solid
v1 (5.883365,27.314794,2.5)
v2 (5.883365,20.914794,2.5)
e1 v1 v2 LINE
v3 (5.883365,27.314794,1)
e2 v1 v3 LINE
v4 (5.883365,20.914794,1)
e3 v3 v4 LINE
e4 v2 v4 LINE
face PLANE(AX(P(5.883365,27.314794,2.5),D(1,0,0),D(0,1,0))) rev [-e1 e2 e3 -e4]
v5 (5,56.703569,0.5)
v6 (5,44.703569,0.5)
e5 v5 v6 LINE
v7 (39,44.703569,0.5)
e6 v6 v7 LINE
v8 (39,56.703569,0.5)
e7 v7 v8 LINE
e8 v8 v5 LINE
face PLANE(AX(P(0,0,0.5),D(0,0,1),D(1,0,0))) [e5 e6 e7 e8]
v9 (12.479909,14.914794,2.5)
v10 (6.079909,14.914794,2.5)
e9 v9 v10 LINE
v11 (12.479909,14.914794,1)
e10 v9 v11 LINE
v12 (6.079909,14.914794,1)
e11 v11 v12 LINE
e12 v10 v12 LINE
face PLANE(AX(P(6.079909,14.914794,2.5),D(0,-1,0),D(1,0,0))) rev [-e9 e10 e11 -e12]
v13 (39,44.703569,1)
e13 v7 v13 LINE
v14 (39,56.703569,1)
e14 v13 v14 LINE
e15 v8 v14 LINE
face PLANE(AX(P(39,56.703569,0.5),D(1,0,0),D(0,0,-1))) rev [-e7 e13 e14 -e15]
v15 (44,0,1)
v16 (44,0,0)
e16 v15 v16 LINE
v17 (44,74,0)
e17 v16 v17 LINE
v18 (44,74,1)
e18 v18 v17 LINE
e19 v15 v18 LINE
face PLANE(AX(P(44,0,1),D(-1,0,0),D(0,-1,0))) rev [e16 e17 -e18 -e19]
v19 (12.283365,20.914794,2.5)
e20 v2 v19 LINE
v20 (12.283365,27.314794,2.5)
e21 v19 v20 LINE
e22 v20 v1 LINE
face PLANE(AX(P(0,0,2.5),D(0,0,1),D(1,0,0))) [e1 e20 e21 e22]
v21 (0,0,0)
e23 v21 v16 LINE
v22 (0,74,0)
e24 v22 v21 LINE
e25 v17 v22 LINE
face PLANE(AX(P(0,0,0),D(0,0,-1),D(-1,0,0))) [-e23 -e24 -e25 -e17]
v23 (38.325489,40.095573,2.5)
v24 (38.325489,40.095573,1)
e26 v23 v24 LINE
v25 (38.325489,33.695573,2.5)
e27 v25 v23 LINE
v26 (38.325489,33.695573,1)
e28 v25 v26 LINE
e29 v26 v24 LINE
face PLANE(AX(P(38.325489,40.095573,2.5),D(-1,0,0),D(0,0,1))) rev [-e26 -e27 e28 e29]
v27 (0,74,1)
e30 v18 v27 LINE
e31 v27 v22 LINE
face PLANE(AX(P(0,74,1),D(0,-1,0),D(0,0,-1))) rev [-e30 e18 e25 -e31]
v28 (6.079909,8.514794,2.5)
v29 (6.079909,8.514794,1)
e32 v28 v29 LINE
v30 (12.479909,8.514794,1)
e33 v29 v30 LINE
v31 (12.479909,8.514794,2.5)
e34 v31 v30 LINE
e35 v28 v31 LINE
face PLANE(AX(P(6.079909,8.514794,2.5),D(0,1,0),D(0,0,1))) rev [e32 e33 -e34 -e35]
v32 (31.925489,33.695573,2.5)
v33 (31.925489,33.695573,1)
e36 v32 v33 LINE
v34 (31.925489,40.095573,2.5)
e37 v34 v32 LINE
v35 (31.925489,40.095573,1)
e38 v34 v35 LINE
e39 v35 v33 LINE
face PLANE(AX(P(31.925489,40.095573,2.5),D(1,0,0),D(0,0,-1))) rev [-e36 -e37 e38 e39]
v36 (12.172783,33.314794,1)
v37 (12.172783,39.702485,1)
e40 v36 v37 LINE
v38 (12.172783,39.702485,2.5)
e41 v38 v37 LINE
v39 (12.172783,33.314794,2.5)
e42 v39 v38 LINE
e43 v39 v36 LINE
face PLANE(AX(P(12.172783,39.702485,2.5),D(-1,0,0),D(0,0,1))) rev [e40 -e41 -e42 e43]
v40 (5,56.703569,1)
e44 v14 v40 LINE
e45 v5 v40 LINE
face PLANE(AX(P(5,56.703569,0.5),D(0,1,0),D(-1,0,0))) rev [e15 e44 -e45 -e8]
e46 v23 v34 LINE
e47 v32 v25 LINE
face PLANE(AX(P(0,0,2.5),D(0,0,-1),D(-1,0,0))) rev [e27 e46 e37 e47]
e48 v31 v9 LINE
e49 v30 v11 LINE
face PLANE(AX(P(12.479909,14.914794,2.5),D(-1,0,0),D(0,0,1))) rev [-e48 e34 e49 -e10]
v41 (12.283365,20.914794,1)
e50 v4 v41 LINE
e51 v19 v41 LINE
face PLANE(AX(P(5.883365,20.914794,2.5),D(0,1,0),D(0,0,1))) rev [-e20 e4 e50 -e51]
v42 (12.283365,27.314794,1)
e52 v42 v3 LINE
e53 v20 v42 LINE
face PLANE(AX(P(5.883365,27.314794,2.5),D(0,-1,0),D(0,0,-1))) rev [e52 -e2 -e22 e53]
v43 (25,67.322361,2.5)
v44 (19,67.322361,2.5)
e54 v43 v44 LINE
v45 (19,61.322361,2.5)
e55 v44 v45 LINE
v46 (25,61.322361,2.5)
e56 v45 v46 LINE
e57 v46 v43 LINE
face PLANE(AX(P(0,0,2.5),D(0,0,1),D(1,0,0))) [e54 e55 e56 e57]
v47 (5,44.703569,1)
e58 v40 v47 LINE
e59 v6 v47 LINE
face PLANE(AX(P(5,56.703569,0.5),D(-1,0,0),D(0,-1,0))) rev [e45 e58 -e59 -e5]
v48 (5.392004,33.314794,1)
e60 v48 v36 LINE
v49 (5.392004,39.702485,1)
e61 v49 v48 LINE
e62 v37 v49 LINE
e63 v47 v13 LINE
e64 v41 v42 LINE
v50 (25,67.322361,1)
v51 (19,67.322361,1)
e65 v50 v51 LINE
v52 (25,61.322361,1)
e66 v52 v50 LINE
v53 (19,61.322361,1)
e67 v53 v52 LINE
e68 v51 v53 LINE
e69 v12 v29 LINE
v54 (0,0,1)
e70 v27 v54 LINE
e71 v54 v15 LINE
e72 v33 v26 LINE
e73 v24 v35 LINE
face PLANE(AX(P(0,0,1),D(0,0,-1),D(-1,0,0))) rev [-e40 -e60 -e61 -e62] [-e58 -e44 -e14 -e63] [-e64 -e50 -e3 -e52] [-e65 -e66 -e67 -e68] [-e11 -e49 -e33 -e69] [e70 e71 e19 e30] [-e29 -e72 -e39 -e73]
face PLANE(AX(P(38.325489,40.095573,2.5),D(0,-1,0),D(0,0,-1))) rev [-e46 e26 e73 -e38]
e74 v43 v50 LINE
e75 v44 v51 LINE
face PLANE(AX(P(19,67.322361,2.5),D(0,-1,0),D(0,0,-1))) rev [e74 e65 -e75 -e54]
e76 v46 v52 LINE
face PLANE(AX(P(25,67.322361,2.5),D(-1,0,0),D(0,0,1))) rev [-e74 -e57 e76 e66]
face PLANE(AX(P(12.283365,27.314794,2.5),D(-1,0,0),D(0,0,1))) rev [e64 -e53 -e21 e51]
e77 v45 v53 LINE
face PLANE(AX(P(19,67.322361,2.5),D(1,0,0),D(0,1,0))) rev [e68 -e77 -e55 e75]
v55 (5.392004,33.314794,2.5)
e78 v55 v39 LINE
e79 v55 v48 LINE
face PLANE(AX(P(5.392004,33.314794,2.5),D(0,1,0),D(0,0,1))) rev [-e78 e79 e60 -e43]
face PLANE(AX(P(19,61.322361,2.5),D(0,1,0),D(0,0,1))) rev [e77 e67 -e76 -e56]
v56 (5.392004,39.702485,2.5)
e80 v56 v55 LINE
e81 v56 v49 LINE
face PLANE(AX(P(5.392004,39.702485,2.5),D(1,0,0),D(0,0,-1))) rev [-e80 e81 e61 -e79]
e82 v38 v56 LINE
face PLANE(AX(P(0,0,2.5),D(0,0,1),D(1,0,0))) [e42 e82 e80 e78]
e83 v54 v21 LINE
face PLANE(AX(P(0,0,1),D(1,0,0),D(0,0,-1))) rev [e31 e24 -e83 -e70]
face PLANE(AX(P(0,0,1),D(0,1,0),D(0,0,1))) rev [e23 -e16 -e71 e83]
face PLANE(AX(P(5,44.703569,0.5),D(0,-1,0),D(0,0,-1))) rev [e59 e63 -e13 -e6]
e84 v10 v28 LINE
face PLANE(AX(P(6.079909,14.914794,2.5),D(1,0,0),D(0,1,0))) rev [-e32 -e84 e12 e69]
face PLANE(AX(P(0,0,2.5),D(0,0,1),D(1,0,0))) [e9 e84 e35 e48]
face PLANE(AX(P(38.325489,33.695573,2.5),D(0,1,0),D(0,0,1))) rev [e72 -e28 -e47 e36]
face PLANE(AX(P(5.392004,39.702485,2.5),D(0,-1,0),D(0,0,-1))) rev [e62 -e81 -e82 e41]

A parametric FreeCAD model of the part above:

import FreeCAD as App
import Part
import Sketcher

V = App.Vector

doc = App.newDocument("Part")
body = doc.addObject("PartDesign::Body", "Body")

# Sketch on XY plane
sketch1 = doc.addObject("Sketcher::SketchObject", "Sketch")
body.addObject(sketch1)
sketch1.AttachmentSupport = (doc.XY_Plane, [""])
sketch1.MapMode = "FlatFace"
sketch1.addGeometry([
    Part.LineSegment(V(0, 74, 0), V(0, 0, 0)),
    Part.LineSegment(V(0, 0, 0), V(44, 0, 0)),
    Part.LineSegment(V(44, 0, 0), V(44, 74, 0)),
    Part.LineSegment(V(44, 74, 0), V(0, 74, 0)),
], False)
sketch1.addConstraint([
    Sketcher.Constraint("Coincident", 0, 2, 1, 1),
    Sketcher.Constraint("Coincident", 1, 2, 2, 1),
    Sketcher.Constraint("Coincident", 2, 2, 3, 1),
    Sketcher.Constraint("Coincident", 3, 2, 0, 1),
    Sketcher.Constraint("Vertical", 0),
    Sketcher.Constraint("Horizontal", 1),
    Sketcher.Constraint("Vertical", 2),
    Sketcher.Constraint("Horizontal", 3),
    Sketcher.Constraint("Coincident", 0, 2, -1, 1),
    Sketcher.Constraint("DistanceX", 1, 1, 1, 2, 44.0),
    Sketcher.Constraint("DistanceY", 0, 2, 0, 1, 74.0),
])
pad1 = doc.addObject("PartDesign::Pad", "Pad")
body.addObject(pad1)
pad1.Profile = sketch1
pad1.Length = 1

# Sketch on XY plane
sketch2 = doc.addObject("Sketcher::SketchObject", "Sketch001")
body.addObject(sketch2)
sketch2.AttachmentSupport = (doc.XY_Plane, [""])
sketch2.MapMode = "FlatFace"
sketch2.AttachmentOffset = App.Placement(V(0, 0, 1), App.Rotation())
sketch2.addGeometry([
    Part.LineSegment(V(5, 57, 0), V(5, 45, 0)),
    Part.LineSegment(V(5, 45, 0), V(39, 45, 0)),
    Part.LineSegment(V(39, 45, 0), V(39, 57, 0)),
    Part.LineSegment(V(39, 57, 0), V(5, 57, 0)),
], False)
sketch2.addConstraint([
    Sketcher.Constraint("Coincident", 0, 2, 1, 1),
    Sketcher.Constraint("Coincident", 1, 2, 2, 1),
    Sketcher.Constraint("Coincident", 2, 2, 3, 1),
    Sketcher.Constraint("Coincident", 3, 2, 0, 1),
    Sketcher.Constraint("Vertical", 0),
    Sketcher.Constraint("Horizontal", 1),
    Sketcher.Constraint("Vertical", 2),
    Sketcher.Constraint("Horizontal", 3),
    Sketcher.Constraint("DistanceX", 1, 1, 1, 2, 34.0),
    Sketcher.Constraint("DistanceY", 0, 2, 0, 1, 12.0),
    Sketcher.Constraint("DistanceX", -1, 1, 0, 2, 5.0),
    Sketcher.Constraint("DistanceY", -1, 1, 0, 2, 44.703569),
])
pocket1 = doc.addObject("PartDesign::Pocket", "Pocket")
body.addObject(pocket1)
pocket1.Profile = sketch2
pocket1.Length = 0.5

# Sketch on XY plane
sketch3 = doc.addObject("Sketcher::SketchObject", "Sketch002")
body.addObject(sketch3)
sketch3.AttachmentSupport = (doc.XY_Plane, [""])
sketch3.MapMode = "FlatFace"
sketch3.AttachmentOffset = App.Placement(V(0, 0, 1), App.Rotation())
sketch3.addGeometry([
    Part.LineSegment(V(19, 67, 0), V(19, 61, 0)),
    Part.LineSegment(V(19, 61, 0), V(25, 61, 0)),
    Part.LineSegment(V(25, 61, 0), V(25, 67, 0)),
    Part.LineSegment(V(25, 67, 0), V(19, 67, 0)),
], False)
sketch3.addConstraint([
    Sketcher.Constraint("Coincident", 0, 2, 1, 1),
    Sketcher.Constraint("Coincident", 1, 2, 2, 1),
    Sketcher.Constraint("Coincident", 2, 2, 3, 1),
    Sketcher.Constraint("Coincident", 3, 2, 0, 1),
    Sketcher.Constraint("Vertical", 0),
    Sketcher.Constraint("Horizontal", 1),
    Sketcher.Constraint("Vertical", 2),
    Sketcher.Constraint("Horizontal", 3),
    Sketcher.Constraint("Equal", 3, 0),
    Sketcher.Constraint("DistanceX", 1, 1, 1, 2, 6.0),
    Sketcher.Constraint("DistanceX", -1, 1, 0, 2, 19.0),
    Sketcher.Constraint("DistanceY", -1, 1, 0, 2, 61.322361),
])
pad2 = doc.addObject("PartDesign::Pad", "Pad001")
body.addObject(pad2)
pad2.Profile = sketch3
pad2.Length = 1.5

# Sketch on XY plane
sketch4 = doc.addObject("Sketcher::SketchObject", "Sketch003")
body.addObject(sketch4)
sketch4.AttachmentSupport = (doc.XY_Plane, [""])
sketch4.MapMode = "FlatFace"
sketch4.AttachmentOffset = App.Placement(V(0, 0, 1), App.Rotation())
sketch4.addGeometry([
    Part.LineSegment(V(5, 40, 0), V(5, 33, 0)),
    Part.LineSegment(V(5, 33, 0), V(12, 33, 0)),
    Part.LineSegment(V(12, 33, 0), V(12, 40, 0)),
    Part.LineSegment(V(12, 40, 0), V(5, 40, 0)),
], False)
sketch4.addConstraint([
    Sketcher.Constraint("Coincident", 0, 2, 1, 1),
    Sketcher.Constraint("Coincident", 1, 2, 2, 1),
    Sketcher.Constraint("Coincident", 2, 2, 3, 1),
    Sketcher.Constraint("Coincident", 3, 2, 0, 1),
    Sketcher.Constraint("Vertical", 0),
    Sketcher.Constraint("Horizontal", 1),
    Sketcher.Constraint("Vertical", 2),
    Sketcher.Constraint("Horizontal", 3),
    Sketcher.Constraint("DistanceX", 1, 1, 1, 2, 6.780779),
    Sketcher.Constraint("DistanceY", 0, 2, 0, 1, 6.387691),
    Sketcher.Constraint("DistanceX", -1, 1, 0, 2, 5.392004),
    Sketcher.Constraint("DistanceY", -1, 1, 0, 2, 33.314794),
])
pad3 = doc.addObject("PartDesign::Pad", "Pad002")
body.addObject(pad3)
pad3.Profile = sketch4
pad3.Length = 1.5

# Sketch on XY plane
sketch5 = doc.addObject("Sketcher::SketchObject", "Sketch004")
body.addObject(sketch5)
sketch5.AttachmentSupport = (doc.XY_Plane, [""])
sketch5.MapMode = "FlatFace"
sketch5.AttachmentOffset = App.Placement(V(0, 0, 1), App.Rotation())
sketch5.addGeometry([
    Part.LineSegment(V(6, 27, 0), V(6, 21, 0)),
    Part.LineSegment(V(6, 21, 0), V(12, 21, 0)),
    Part.LineSegment(V(12, 21, 0), V(12, 27, 0)),
    Part.LineSegment(V(12, 27, 0), V(6, 27, 0)),
], False)
sketch5.addConstraint([
    Sketcher.Constraint("Coincident", 0, 2, 1, 1),
    Sketcher.Constraint("Coincident", 1, 2, 2, 1),
    Sketcher.Constraint("Coincident", 2, 2, 3, 1),
    Sketcher.Constraint("Coincident", 3, 2, 0, 1),
    Sketcher.Constraint("Vertical", 0),
    Sketcher.Constraint("Horizontal", 1),
    Sketcher.Constraint("Vertical", 2),
    Sketcher.Constraint("Horizontal", 3),
    Sketcher.Constraint("Equal", 3, 0),
    Sketcher.Constraint("DistanceX", 1, 1, 1, 2, 6.4),
    Sketcher.Constraint("DistanceX", -1, 1, 0, 2, 5.883365),
    Sketcher.Constraint("DistanceY", -1, 1, 0, 2, 20.914794),
])
pad4 = doc.addObject("PartDesign::Pad", "Pad003")
body.addObject(pad4)
pad4.Profile = sketch5
pad4.Length = 1.5

# Sketch on XY plane
sketch6 = doc.addObject("Sketcher::SketchObject", "Sketch005")
body.addObject(sketch6)
sketch6.AttachmentSupport = (doc.XY_Plane, [""])
sketch6.MapMode = "FlatFace"
sketch6.AttachmentOffset = App.Placement(V(0, 0, 1), App.Rotation())
sketch6.addGeometry([
    Part.LineSegment(V(6, 15, 0), V(6, 9, 0)),
    Part.LineSegment(V(6, 9, 0), V(12, 9, 0)),
    Part.LineSegment(V(12, 9, 0), V(12, 15, 0)),
    Part.LineSegment(V(12, 15, 0), V(6, 15, 0)),
], False)
sketch6.addConstraint([
    Sketcher.Constraint("Coincident", 0, 2, 1, 1),
    Sketcher.Constraint("Coincident", 1, 2, 2, 1),
    Sketcher.Constraint("Coincident", 2, 2, 3, 1),
    Sketcher.Constraint("Coincident", 3, 2, 0, 1),
    Sketcher.Constraint("Vertical", 0),
    Sketcher.Constraint("Horizontal", 1),
    Sketcher.Constraint("Vertical", 2),
    Sketcher.Constraint("Horizontal", 3),
    Sketcher.Constraint("Equal", 3, 0),
    Sketcher.Constraint("DistanceX", 1, 1, 1, 2, 6.4),
    Sketcher.Constraint("DistanceX", -1, 1, 0, 2, 6.079909),
    Sketcher.Constraint("DistanceY", -1, 1, 0, 2, 8.514794),
])
pad5 = doc.addObject("PartDesign::Pad", "Pad004")
body.addObject(pad5)
pad5.Profile = sketch6
pad5.Length = 1.5

# Sketch on XY plane
sketch7 = doc.addObject("Sketcher::SketchObject", "Sketch006")
body.addObject(sketch7)
sketch7.AttachmentSupport = (doc.XY_Plane, [""])
sketch7.MapMode = "FlatFace"
sketch7.AttachmentOffset = App.Placement(V(0, 0, 1), App.Rotation())
sketch7.addGeometry([
    Part.LineSegment(V(32, 40, 0), V(32, 34, 0)),
    Part.LineSegment(V(32, 34, 0), V(38, 34, 0)),
    Part.LineSegment(V(38, 34, 0), V(38, 40, 0)),
    Part.LineSegment(V(38, 40, 0), V(32, 40, 0)),
], False)
sketch7.addConstraint([
    Sketcher.Constraint("Coincident", 0, 2, 1, 1),
    Sketcher.Constraint("Coincident", 1, 2, 2, 1),
    Sketcher.Constraint("Coincident", 2, 2, 3, 1),
    Sketcher.Constraint("Coincident", 3, 2, 0, 1),
    Sketcher.Constraint("Vertical", 0),
    Sketcher.Constraint("Horizontal", 1),
    Sketcher.Constraint("Vertical", 2),
    Sketcher.Constraint("Horizontal", 3),
    Sketcher.Constraint("Equal", 3, 0),
    Sketcher.Constraint("DistanceX", 1, 1, 1, 2, 6.4),
    Sketcher.Constraint("DistanceX", -1, 1, 0, 2, 31.925489),
    Sketcher.Constraint("DistanceY", -1, 1, 0, 2, 33.695573),
])
pad6 = doc.addObject("PartDesign::Pad", "Pad005")
body.addObject(pad6)
pad6.Profile = sketch7
pad6.Length = 1.5

doc.recompute()
